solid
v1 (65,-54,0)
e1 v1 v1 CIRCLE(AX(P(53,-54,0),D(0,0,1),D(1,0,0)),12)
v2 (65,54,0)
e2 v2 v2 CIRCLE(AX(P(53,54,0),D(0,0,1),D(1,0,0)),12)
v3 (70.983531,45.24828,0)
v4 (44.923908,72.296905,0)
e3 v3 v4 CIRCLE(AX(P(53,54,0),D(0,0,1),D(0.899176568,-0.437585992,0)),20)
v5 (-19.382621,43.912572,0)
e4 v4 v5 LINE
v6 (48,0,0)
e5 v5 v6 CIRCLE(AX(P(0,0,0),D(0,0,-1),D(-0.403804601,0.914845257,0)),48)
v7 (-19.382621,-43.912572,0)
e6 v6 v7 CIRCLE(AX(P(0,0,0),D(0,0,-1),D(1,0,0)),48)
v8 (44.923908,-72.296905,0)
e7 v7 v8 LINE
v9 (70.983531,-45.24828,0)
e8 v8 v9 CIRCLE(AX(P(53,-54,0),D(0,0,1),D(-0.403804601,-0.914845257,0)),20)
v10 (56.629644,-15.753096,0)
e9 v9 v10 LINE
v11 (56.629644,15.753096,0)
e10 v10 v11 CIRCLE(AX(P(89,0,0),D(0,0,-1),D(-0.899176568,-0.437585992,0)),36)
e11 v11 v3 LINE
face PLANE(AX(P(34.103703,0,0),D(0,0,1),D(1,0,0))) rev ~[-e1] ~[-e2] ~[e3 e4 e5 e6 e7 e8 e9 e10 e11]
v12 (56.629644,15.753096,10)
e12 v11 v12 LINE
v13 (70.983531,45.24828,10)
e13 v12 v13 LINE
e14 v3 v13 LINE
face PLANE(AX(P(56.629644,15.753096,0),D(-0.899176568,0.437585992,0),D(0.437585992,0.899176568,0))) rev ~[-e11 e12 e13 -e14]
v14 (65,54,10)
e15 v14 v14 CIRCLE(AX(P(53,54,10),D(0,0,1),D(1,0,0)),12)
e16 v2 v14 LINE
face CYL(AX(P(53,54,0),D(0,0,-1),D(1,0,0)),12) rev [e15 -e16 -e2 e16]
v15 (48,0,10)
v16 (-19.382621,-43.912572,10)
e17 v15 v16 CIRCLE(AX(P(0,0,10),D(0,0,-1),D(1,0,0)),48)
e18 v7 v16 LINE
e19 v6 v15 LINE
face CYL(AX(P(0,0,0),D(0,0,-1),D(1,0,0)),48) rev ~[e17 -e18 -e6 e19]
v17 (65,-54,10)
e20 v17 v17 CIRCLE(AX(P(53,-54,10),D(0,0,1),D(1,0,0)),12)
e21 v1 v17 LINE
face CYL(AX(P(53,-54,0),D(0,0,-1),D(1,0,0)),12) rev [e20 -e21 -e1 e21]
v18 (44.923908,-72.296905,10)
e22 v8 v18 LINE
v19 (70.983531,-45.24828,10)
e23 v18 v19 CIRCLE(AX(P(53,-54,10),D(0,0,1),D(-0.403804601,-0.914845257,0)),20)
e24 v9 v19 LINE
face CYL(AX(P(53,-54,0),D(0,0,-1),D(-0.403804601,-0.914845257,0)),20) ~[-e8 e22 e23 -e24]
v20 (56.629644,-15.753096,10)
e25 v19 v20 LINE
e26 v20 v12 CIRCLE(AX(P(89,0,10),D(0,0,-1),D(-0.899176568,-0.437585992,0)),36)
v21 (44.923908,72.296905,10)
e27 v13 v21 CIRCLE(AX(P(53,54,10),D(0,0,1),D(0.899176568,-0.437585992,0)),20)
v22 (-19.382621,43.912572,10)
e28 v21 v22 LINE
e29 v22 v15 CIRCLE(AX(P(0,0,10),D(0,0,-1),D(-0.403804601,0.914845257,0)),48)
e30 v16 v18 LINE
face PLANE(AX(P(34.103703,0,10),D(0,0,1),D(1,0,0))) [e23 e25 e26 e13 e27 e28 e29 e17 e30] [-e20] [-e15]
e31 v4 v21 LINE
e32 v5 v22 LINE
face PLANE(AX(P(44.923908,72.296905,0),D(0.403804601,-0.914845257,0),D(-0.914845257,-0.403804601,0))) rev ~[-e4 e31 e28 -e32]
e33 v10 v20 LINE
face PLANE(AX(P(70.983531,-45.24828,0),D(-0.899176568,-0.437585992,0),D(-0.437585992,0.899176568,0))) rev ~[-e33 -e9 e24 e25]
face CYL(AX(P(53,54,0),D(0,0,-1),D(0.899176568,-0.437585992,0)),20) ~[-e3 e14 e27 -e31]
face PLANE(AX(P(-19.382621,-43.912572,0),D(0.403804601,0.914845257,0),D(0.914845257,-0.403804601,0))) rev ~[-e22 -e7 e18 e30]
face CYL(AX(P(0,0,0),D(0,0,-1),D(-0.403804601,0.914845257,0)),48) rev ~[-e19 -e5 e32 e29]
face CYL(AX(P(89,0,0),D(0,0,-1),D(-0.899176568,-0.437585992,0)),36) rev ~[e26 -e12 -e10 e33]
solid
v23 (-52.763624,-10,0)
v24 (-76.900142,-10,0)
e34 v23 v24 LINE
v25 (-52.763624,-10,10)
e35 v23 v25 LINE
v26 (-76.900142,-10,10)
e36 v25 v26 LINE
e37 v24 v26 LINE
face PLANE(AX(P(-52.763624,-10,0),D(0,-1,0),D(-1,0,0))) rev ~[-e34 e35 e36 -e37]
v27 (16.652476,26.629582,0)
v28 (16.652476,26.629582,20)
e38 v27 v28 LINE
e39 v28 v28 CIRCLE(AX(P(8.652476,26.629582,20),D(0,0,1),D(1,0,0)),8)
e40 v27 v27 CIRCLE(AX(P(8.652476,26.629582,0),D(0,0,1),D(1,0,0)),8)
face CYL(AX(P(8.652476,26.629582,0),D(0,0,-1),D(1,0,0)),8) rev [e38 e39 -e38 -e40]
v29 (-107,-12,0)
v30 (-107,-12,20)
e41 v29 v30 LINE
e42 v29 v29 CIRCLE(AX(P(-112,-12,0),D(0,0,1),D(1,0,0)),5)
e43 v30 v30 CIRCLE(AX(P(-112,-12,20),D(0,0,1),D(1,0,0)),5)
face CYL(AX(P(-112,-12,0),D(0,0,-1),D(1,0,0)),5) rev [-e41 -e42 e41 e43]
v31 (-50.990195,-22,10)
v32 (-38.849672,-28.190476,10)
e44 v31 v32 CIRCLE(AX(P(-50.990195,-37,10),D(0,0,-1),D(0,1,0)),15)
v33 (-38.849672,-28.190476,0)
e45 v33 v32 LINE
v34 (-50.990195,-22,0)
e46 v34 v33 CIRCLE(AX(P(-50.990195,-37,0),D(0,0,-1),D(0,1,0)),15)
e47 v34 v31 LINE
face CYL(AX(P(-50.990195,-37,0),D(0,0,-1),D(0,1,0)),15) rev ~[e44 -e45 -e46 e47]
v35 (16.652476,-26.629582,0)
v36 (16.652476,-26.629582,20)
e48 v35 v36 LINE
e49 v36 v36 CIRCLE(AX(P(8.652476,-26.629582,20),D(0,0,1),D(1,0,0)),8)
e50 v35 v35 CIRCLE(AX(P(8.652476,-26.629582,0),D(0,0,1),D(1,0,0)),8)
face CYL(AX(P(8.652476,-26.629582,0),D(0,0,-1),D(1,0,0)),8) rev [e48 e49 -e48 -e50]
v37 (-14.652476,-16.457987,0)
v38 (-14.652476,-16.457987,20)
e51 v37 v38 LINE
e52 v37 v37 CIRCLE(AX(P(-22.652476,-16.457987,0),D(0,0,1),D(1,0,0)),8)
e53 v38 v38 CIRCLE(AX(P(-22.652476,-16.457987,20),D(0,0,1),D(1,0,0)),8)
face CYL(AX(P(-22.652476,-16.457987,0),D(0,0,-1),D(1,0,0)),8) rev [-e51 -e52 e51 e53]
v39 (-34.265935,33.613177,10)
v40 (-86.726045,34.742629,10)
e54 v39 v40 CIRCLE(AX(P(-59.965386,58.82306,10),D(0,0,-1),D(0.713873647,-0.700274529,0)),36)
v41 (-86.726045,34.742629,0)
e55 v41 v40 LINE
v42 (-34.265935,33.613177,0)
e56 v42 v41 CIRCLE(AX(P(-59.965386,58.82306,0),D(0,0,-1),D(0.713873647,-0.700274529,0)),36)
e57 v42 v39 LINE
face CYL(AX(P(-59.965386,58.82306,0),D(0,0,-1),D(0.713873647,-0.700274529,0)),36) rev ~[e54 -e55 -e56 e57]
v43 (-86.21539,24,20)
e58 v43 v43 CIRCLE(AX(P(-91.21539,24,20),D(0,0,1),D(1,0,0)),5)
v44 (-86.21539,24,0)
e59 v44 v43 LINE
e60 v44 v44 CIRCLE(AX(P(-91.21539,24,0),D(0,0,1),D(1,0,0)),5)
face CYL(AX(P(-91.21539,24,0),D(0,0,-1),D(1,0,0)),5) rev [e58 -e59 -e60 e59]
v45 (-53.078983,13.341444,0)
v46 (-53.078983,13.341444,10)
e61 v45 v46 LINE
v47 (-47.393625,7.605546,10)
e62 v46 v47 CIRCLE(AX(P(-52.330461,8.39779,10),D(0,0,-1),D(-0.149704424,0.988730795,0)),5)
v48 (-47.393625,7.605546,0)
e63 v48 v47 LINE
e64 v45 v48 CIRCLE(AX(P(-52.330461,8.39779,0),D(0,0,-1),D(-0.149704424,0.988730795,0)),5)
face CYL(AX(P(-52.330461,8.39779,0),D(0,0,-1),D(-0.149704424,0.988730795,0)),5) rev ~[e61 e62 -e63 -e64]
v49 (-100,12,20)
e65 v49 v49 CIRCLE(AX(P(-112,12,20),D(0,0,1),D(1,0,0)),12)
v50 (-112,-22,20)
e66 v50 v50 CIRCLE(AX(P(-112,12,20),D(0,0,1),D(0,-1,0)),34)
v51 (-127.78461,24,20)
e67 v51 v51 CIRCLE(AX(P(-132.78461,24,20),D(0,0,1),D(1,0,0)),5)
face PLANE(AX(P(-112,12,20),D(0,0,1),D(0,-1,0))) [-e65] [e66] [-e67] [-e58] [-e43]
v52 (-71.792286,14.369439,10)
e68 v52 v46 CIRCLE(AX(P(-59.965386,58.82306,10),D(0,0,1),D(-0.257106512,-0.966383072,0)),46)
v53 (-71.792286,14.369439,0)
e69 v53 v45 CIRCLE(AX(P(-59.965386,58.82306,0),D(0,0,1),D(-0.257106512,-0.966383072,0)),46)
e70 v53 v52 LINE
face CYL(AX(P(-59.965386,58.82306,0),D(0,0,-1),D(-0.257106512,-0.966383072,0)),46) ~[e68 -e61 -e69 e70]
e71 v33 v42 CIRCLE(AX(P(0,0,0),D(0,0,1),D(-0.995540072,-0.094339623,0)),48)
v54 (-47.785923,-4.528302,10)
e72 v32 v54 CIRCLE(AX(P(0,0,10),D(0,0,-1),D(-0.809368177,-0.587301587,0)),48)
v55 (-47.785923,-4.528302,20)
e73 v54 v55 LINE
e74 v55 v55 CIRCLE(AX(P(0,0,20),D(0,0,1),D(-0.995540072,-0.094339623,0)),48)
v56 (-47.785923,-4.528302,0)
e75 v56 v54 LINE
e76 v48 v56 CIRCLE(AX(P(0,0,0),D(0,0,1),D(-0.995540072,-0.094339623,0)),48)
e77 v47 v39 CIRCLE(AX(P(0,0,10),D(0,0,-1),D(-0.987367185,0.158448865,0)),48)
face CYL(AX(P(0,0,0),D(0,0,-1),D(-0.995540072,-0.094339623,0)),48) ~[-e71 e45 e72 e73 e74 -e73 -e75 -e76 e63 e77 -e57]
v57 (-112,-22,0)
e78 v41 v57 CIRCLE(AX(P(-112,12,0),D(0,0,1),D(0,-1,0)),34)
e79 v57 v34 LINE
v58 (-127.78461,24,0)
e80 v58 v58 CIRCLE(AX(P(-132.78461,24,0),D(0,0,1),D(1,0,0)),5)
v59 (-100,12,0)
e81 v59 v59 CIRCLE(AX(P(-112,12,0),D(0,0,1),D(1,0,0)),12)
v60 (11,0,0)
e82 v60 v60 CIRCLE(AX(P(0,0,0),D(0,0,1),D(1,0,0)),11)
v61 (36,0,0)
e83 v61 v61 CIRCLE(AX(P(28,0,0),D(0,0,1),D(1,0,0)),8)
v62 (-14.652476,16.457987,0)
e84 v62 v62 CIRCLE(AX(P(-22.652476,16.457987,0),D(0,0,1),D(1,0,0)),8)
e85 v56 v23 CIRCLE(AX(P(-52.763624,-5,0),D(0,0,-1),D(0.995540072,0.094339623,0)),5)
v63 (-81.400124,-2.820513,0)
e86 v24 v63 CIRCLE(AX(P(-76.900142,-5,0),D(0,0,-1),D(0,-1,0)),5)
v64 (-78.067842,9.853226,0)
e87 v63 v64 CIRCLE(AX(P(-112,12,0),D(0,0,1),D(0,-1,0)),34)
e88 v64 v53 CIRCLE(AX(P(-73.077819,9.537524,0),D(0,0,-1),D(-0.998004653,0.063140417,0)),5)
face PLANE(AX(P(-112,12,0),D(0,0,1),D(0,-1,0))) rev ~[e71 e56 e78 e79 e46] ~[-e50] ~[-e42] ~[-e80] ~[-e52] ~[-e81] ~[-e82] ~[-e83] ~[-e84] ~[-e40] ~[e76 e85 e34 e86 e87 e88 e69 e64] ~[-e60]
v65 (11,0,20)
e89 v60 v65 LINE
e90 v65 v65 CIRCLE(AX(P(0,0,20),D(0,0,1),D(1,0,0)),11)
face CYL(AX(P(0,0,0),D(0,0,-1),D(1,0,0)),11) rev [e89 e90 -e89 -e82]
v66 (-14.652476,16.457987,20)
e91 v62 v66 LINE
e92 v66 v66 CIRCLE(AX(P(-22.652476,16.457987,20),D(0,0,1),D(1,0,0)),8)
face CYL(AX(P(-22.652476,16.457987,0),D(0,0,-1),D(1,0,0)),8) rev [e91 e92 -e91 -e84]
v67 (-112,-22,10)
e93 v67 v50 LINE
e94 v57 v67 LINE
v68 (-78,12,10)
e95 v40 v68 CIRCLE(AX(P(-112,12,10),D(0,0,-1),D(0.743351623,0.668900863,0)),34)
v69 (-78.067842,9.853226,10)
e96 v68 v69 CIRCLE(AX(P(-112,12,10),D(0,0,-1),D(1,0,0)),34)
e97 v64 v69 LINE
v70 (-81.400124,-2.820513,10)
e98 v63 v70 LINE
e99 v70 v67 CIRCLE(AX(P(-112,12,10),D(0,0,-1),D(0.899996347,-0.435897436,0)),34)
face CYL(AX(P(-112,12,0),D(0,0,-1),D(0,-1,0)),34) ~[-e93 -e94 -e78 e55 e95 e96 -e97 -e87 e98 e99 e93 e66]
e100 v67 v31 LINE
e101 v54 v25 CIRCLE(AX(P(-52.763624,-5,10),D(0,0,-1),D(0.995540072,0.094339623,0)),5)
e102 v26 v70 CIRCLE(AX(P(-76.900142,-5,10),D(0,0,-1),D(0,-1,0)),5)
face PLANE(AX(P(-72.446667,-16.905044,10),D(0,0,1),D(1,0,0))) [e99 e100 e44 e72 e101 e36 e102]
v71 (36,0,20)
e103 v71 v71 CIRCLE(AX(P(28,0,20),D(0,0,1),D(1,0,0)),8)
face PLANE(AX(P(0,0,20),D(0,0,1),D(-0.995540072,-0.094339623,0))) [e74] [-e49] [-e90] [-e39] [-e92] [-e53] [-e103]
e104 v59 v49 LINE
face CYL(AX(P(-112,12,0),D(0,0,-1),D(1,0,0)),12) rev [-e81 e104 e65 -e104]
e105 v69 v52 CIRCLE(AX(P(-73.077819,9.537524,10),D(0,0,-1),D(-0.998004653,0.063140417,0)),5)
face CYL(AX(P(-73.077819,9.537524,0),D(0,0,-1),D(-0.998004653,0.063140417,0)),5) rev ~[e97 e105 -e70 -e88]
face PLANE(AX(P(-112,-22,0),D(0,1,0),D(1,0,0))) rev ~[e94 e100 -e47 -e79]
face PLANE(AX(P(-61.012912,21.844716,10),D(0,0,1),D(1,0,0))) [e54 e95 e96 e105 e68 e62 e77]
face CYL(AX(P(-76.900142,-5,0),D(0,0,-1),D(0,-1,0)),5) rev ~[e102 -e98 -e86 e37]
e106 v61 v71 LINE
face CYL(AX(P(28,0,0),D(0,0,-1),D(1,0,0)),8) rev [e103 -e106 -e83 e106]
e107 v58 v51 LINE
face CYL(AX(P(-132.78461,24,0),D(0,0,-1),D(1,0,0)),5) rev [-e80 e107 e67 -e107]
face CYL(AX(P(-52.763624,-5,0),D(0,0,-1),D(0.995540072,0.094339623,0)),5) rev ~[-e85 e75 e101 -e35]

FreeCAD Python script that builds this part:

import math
import FreeCAD as App
import Part
import Sketcher

V = App.Vector
Q = App.Units.Quantity

doc = App.newDocument("Part")
body = doc.addObject("PartDesign::Body", "Body")

# Sketch on XY plane
sketch1 = body.newObject("Sketcher::SketchObject", "Sketch")
sketch1.AttachmentSupport = (doc.getObject("XY_Plane"), [""])
sketch1.MapMode = "FlatFace"
sketch1.addGeometry([
    Part.ArcOfCircle(Part.Circle(V(-60, 58.8, 0), V(0, 0, 1), 36), math.radians(-138), math.radians(-44)),  # 0
    Part.ArcOfCircle(Part.Circle(V(-112, 12, 0), V(0, 0, 1), 34), math.radians(0), math.radians(42)),  # 1
    Part.ArcOfCircle(Part.Circle(V(-112, 12, 0), V(0, 0, 1), 34), math.radians(-3.62), math.radians(0)),  # 2
    Part.ArcOfCircle(Part.Circle(V(-73.1, 9.5, 0), V(0, 0, 1), 5), math.radians(75), math.radians(176)),  # 3
    Part.ArcOfCircle(Part.Circle(V(-60, 58.8, 0), V(0, 0, 1), 46), math.radians(-105), math.radians(-81)),  # 4
    Part.ArcOfCircle(Part.Circle(V(-52.3, 8.4, 0), V(0, 0, 1), 5), math.radians(-9), math.radians(99)),  # 5
    Part.ArcOfCircle(Part.Circle(V(0, 0, 0), V(0, 0, 1), 48), math.radians(136), math.radians(171)),  # 6
], False)
sketch1.addConstraint([
    Sketcher.Constraint("Tangent", 0, 1, 1, 2),
    Sketcher.Constraint("Tangent", 1, 1, 2, 2),
    Sketcher.Constraint("Tangent", 2, 1, 3, 2),
    Sketcher.Constraint("Tangent", 3, 1, 4, 1),
    Sketcher.Constraint("Tangent", 4, 2, 5, 2),
    Sketcher.Constraint("Tangent", 5, 1, 6, 2),
    Sketcher.Constraint("Tangent", 6, 1, 0, 2),
    Sketcher.Constraint("Coincident", 6, 3, -1, 1),
    Sketcher.Constraint("Coincident", 4, 3, 0, 3),
    Sketcher.Constraint("Equal", 1, 2),
    Sketcher.Constraint("Equal", 3, 5),
    Sketcher.Constraint("Horizontal", 2, 3, 1, 1),
    Sketcher.Constraint("Radius", 0, Q("36 mm")),
    Sketcher.Constraint("Radius", 1, Q("34 mm")),
    Sketcher.Constraint("Radius", 3, Q("5 mm")),
    Sketcher.Constraint("Radius", 4, Q("46 mm")),
    Sketcher.Constraint("Radius", 6, Q("48 mm")),
    Sketcher.Constraint("DistanceX", 1, 3, -1, 1, Q("112 mm")),
    Sketcher.Constraint("DistanceY", -1, 1, 1, 3, Q("12 mm")),
])
pad1 = body.newObject("PartDesign::Pad", "Pad")
pad1.Profile = sketch1
pad1.Length = 10
body2 = doc.addObject("PartDesign::Body", "Body001")

# Sketch on XY plane
sketch2 = body2.newObject("Sketcher::SketchObject", "Sketch001")
sketch2.AttachmentSupport = (doc.getObject("XY_Plane001"), [""])
sketch2.MapMode = "FlatFace"
sketch2.addGeometry([
    Part.ArcOfCircle(Part.Circle(V(-112, 12, 0), V(0, 0, 1), 34), math.radians(-90), math.radians(-26)),  # 0
    Part.LineSegment(V(-112, -22, 0), V(-51, -22, 0)),  # 1
    Part.ArcOfCircle(Part.Circle(V(-51, -37, 0), V(0, 0, 1), 15), math.radians(36), math.radians(90)),  # 2
    Part.ArcOfCircle(Part.Circle(V(0, 0, 0), V(0, 0, 1), 48), math.radians(-175), math.radians(-144)),  # 3
    Part.ArcOfCircle(Part.Circle(V(-53, -5, 0), V(0, 0, 1), 5), math.radians(-90), math.radians(5)),  # 4
    Part.LineSegment(V(-53, -10, 0), V(-77, -10, 0)),  # 5
    Part.ArcOfCircle(Part.Circle(V(-77, -5, 0), V(0, 0, 1), 5), math.radians(154), math.radians(270)),  # 6
], False)
sketch2.addConstraint([
    Sketcher.Constraint("Tangent", 0, 1, 1, 1),
    Sketcher.Constraint("Tangent", 1, 2, 2, 2),
    Sketcher.Constraint("Tangent", 2, 1, 3, 2),
    Sketcher.Constraint("Tangent", 3, 1, 4, 2),
    Sketcher.Constraint("Tangent", 4, 1, 5, 1),
    Sketcher.Constraint("Tangent", 5, 2, 6, 2),
    Sketcher.Constraint("Tangent", 6, 1, 0, 2),
    Sketcher.Constraint("Horizontal", 1),
    Sketcher.Constraint("Horizontal", 5),
    Sketcher.Constraint("Coincident", 3, 3, -1, 1),
    Sketcher.Constraint("Equal", 4, 6),
    Sketcher.Constraint("Radius", 0, Q("34 mm")),
    Sketcher.Constraint("Radius", 2, Q("15 mm")),
    Sketcher.Constraint("Radius", 3, Q("48 mm")),
    Sketcher.Constraint("Radius", 4, Q("5 mm")),
    Sketcher.Constraint("DistanceX", 0, 3, -1, 1, Q("112 mm")),
    Sketcher.Constraint("DistanceY", -1, 1, 0, 3, Q("12 mm")),
    Sketcher.Constraint("DistanceY", 4, 3, -1, 1, Q("5 mm")),
])
pad2 = body2.newObject("PartDesign::Pad", "Pad001")
pad2.Profile = sketch2
pad2.Length = 10
body3 = doc.addObject("PartDesign::Body", "Body002")

# Sketch on XY plane
sketch3 = body3.newObject("Sketcher::SketchObject", "Sketch002")
sketch3.AttachmentSupport = (doc.getObject("XY_Plane002"), [""])
sketch3.MapMode = "FlatFace"
sketch3.addGeometry([
    Part.ArcOfCircle(Part.Circle(V(0, 0, 0), V(0, 0, 1), 48), math.radians(-114), math.radians(0)),  # 0
    Part.LineSegment(V(-19, -44, 0), V(45, -72, 0)),  # 1
    Part.ArcOfCircle(Part.Circle(V(53, -54, 0), V(0, 0, 1), 20), math.radians(-114), math.radians(26)),  # 2
    Part.LineSegment(V(71, -45, 0), V(57, -16, 0)),  # 3
    Part.ArcOfCircle(Part.Circle(V(89, 0, 0), V(0, 0, 1), 36), math.radians(154), math.radians(206)),  # 4
    Part.LineSegment(V(57, 16, 0), V(71, 45, 0)),  # 5
    Part.ArcOfCircle(Part.Circle(V(53, 54, 0), V(0, 0, 1), 20), math.radians(-26), math.radians(114)),  # 6
    Part.LineSegment(V(45, 72, 0), V(-19, 44, 0)),  # 7
    Part.ArcOfCircle(Part.Circle(V(0, 0, 0), V(0, 0, 1), 48), math.radians(0), math.radians(114)),  # 8
    Part.Circle(V(53, -54, 0), V(0, 0, 1), 12),  # 9
    Part.Circle(V(53, 54, 0), V(0, 0, 1), 12),  # 10
], False)
sketch3.addConstraint([
    Sketcher.Constraint("Tangent", 0, 1, 1, 1),
    Sketcher.Constraint("Tangent", 1, 2, 2, 1),
    Sketcher.Constraint("Tangent", 2, 2, 3, 1),
    Sketcher.Constraint("Tangent", 3, 2, 4, 2),
    Sketcher.Constraint("Tangent", 4, 1, 5, 1),
    Sketcher.Constraint("Tangent", 5, 2, 6, 1),
    Sketcher.Constraint("Tangent", 6, 2, 7, 1),
    Sketcher.Constraint("Tangent", 7, 2, 8, 2),
    Sketcher.Constraint("Tangent", 8, 1, 0, 2),
    Sketcher.Constraint("Coincident", 0, 3, -1, 1),
    Sketcher.Constraint("Coincident", 9, 3, 2, 3),
    Sketcher.Constraint("Coincident", 10, 3, 6, 3),
    Sketcher.Constraint("Equal", 2, 6),
    Sketcher.Constraint("Equal", 0, 8),
    Sketcher.Constraint("Equal", 9, 10),
    Sketcher.Constraint("Symmetric", 2, 3, 6, 3, -1),
    Sketcher.Constraint("PointOnObject", 4, 3, -1),
    Sketcher.Constraint("PointOnObject", 8, 1, -1),
    Sketcher.Constraint("Diameter", 9, Q("24 mm")),
    Sketcher.Constraint("Radius", 0, Q("48 mm")),
    Sketcher.Constraint("Radius", 2, Q("20 mm")),
    Sketcher.Constraint("Radius", 4, Q("36 mm")),
    Sketcher.Constraint("DistanceX", -1, 1, 2, 3, Q("53 mm")),
    Sketcher.Constraint("DistanceY", 2, 3, -1, 1, Q("54 mm")),
    Sketcher.Constraint("DistanceX", -1, 1, 4, 3, Q("89 mm")),
])
pad3 = body3.newObject("PartDesign::Pad", "Pad002")
pad3.Profile = sketch3
pad3.Length = 10
body.AllowCompound = True
doc.recompute()

boolean = body.newObject("PartDesign::Boolean", "Boolean")
boolean.Type = "Fuse"
boolean.addObjects([body2])

# Sketch on XY plane
sketch4 = body.newObject("Sketcher::SketchObject", "Sketch003")
sketch4.AttachmentSupport = (doc.getObject("XY_Plane"), [""])
sketch4.MapMode = "FlatFace"
sketch4.addGeometry([
    Part.Circle(V(-112, 12, 0), V(0, 0, 1), 34),  # 0
    Part.Circle(V(-133, 24, 0), V(0, 0, 1), 5),  # 1
    Part.Circle(V(-112, 12, 0), V(0, 0, 1), 12),  # 2
    Part.Circle(V(-91, 24, 0), V(0, 0, 1), 5),  # 3
    Part.Circle(V(-112, -12, 0), V(0, 0, 1), 5),  # 4
    Part.Circle(V(0, 0, 0), V(0, 0, 1), 48),  # 5
    Part.Circle(V(9, 27, 0), V(0, 0, 1), 8),  # 6
    Part.Circle(V(-23, 16, 0), V(0, 0, 1), 8),  # 7
    Part.Circle(V(0, 0, 0), V(0, 0, 1), 11),  # 8
    Part.Circle(V(28, 0, 0), V(0, 0, 1), 8),  # 9
    Part.Circle(V(9, -27, 0), V(0, 0, 1), 8),  # 10
    Part.Circle(V(-23, -16, 0), V(0, 0, 1), 8),  # 11
], False)
sketch4.addConstraint([
    Sketcher.Constraint("Coincident", 5, 3, -1, 1),
    Sketcher.Constraint("Coincident", 8, 3, -1, 1),
    Sketcher.Constraint("Coincident", 2, 3, 0, 3),
    Sketcher.Constraint("Equal", 1, 3),
    Sketcher.Constraint("Equal", 3, 4),
    Sketcher.Constraint("Equal", 6, 7),
    Sketcher.Constraint("Equal", 7, 9),
    Sketcher.Constraint("Equal", 9, 10),
    Sketcher.Constraint("Equal", 10, 11),
    Sketcher.Constraint("Symmetric", 0, 3, 4, 3, -1),
    Sketcher.Constraint("Symmetric", 6, 3, 10, 3, -1),
    Sketcher.Constraint("Symmetric", 7, 3, 11, 3, -1),
    Sketcher.Constraint("PointOnObject", 9, 3, -1),
    Sketcher.Constraint("Horizontal", 1, 3, 3, 3),
    Sketcher.Constraint("Diameter", 0, Q("68 mm")),
    Sketcher.Constraint("Diameter", 1, Q("10 mm")),
    Sketcher.Constraint("Diameter", 2, Q("24 mm")),
    Sketcher.Constraint("Diameter", 5, Q("96 mm")),
    Sketcher.Constraint("Diameter", 6, Q("16 mm")),
    Sketcher.Constraint("Diameter", 8, Q("22 mm")),
    Sketcher.Constraint("DistanceX", 0, 3, -1, 1, Q("112 mm")),
    Sketcher.Constraint("DistanceY", -1, 1, 0, 3, Q("12 mm")),
    Sketcher.Constraint("DistanceY", -1, 1, 1, 3, Q("24 mm")),
    Sketcher.Constraint("DistanceX", -1, 1, 9, 3, Q("28 mm")),
    Sketcher.Constraint("DistanceX", 1, 3, -1, 1, Q("132.78461 mm")),
    Sketcher.Constraint("DistanceX", 3, 3, -1, 1, Q("91.21539 mm")),
    Sketcher.Constraint("DistanceX", 7, 3, 6, 3, Q("31.304952 mm")),
    Sketcher.Constraint("DistanceY", 10, 3, 7, 3, Q("43.08757 mm")),
    Sketcher.Constraint("DistanceX", -1, 1, 6, 3, Q("8.652476 mm")),
    Sketcher.Constraint("DistanceY", -1, 1, 6, 3, Q("26.629582 mm")),
])
pad4 = body.newObject("PartDesign::Pad", "Pad003")
pad4.Profile = sketch4
pad4.Length = 20

doc.recompute()
